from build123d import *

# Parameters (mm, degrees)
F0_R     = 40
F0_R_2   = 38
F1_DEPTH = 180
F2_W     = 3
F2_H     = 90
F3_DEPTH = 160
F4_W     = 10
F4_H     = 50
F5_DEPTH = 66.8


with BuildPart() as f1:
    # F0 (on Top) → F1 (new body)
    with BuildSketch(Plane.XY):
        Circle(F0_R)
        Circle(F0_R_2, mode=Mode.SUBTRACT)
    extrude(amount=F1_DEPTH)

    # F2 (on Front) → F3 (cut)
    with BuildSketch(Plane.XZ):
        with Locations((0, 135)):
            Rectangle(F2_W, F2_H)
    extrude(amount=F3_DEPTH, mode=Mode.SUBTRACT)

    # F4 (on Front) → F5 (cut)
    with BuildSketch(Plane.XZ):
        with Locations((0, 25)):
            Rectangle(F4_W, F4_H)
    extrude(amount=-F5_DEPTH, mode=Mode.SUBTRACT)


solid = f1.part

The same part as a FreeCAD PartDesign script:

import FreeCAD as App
import Part
import Sketcher
from FreeCAD import Vector
Q = App.Units.Quantity

doc = App.newDocument("Part")
body = doc.addObject("PartDesign::Body", "Body")

# Sketch on XY plane
sketch1 = body.newObject("Sketcher::SketchObject", "Sketch")
sketch1.AttachmentSupport = (doc.getObject("XY_Plane"), [""])
sketch1.MapMode = "FlatFace"
sketch1.addGeometry(Part.Circle(Vector(0, 0, 0), Vector(0, 0, 1), 40), False)
sketch1.addGeometry(Part.Circle(Vector(0, 0, 0), Vector(0, 0, 1), 38), False)
sketch1.addConstraint(Sketcher.Constraint("Coincident", 0, 3, -1, 1))
sketch1.addConstraint(Sketcher.Constraint("Coincident", 1, 3, -1, 1))
sketch1.addConstraint(Sketcher.Constraint("Diameter", 0, Q("80 mm")))
sketch1.addConstraint(Sketcher.Constraint("Diameter", 1, Q("76 mm")))
pad1 = body.newObject("PartDesign::Pad", "Pad")
pad1.Profile = sketch1
pad1.Length = 180

# Sketch on XZ plane
sketch2 = body.newObject("Sketcher::SketchObject", "Sketch001")
sketch2.AttachmentSupport = (doc.getObject("XZ_Plane"), [""])
sketch2.MapMode = "FlatFace"
sketch2.addGeometry(Part.LineSegment(Vector(-1.5, 180, 0), Vector(-1.5, 90, 0)), False)
sketch2.addGeometry(Part.LineSegment(Vector(-1.5, 90, 0), Vector(1.5, 90, 0)), False)
sketch2.addGeometry(Part.LineSegment(Vector(1.5, 90, 0), Vector(1.5, 180, 0)), False)
sketch2.addGeometry(Part.LineSegment(Vector(1.5, 180, 0), Vector(-1.5, 180, 0)), False)
sketch2.addConstraint(Sketcher.Constraint("Coincident", 0, 2, 1, 1))
sketch2.addConstraint(Sketcher.Constraint("Coincident", 1, 2, 2, 1))
sketch2.addConstraint(Sketcher.Constraint("Coincident", 2, 2, 3, 1))
sketch2.addConstraint(Sketcher.Constraint("Coincident", 3, 2, 0, 1))
sketch2.addConstraint(Sketcher.Constraint("Vertical", 0))
sketch2.addConstraint(Sketcher.Constraint("Horizontal", 1))
sketch2.addConstraint(Sketcher.Constraint("Vertical", 2))
sketch2.addConstraint(Sketcher.Constraint("Horizontal", 3))
sketch2.addConstraint(Sketcher.Constraint("DistanceX", 1, 1, 1, 2, Q("3 mm")))
sketch2.addConstraint(Sketcher.Constraint("DistanceY", 0, 2, 0, 1, Q("90 mm")))
sketch2.addConstraint(Sketcher.Constraint("DistanceY", -1, 1, 0, 2, Q("90 mm")))
sketch2.addConstraint(Sketcher.Constraint("DistanceX", 0, 2, -1, 1, Q("1.5 mm")))
pocket1 = body.newObject("PartDesign::Pocket", "Pocket")
pocket1.Profile = sketch2
pocket1.Length = 160
pocket1.Reversed = True

# Sketch on XZ plane
sketch3 = body.newObject("Sketcher::SketchObject", "Sketch002")
sketch3.AttachmentSupport = (doc.getObject("XZ_Plane"), [""])
sketch3.MapMode = "FlatFace"
sketch3.addGeometry(Part.LineSegment(Vector(-5, 50, 0), Vector(-5, 0, 0)), False)
sketch3.addGeometry(Part.LineSegment(Vector(-5, 0, 0), Vector(5, 0, 0)), False)
sketch3.addGeometry(Part.LineSegment(Vector(5, 0, 0), Vector(5, 50, 0)), False)
sketch3.addGeometry(Part.LineSegment(Vector(5, 50, 0), Vector(-5, 50, 0)), False)
sketch3.addConstraint(Sketcher.Constraint("Coincident", 0, 2, 1, 1))
sketch3.addConstraint(Sketcher.Constraint("Coincident", 1, 2, 2, 1))
sketch3.addConstraint(Sketcher.Constraint("Coincident", 2, 2, 3, 1))
sketch3.addConstraint(Sketcher.Constraint("Coincident", 3, 2, 0, 1))
sketch3.addConstraint(Sketcher.Constraint("Vertical", 0))
sketch3.addConstraint(Sketcher.Constraint("Horizontal", 1))
sketch3.addConstraint(Sketcher.Constraint("Vertical", 2))
sketch3.addConstraint(Sketcher.Constraint("Horizontal", 3))
sketch3.addConstraint(Sketcher.Constraint("Symmetric", 0, 2, 1, 2, -1, 1))
sketch3.addConstraint(Sketcher.Constraint("DistanceX", 1, 1, 1, 2, Q("10 mm")))
sketch3.addConstraint(Sketcher.Constraint("DistanceY", 0, 2, 0, 1, Q("50 mm")))
pocket2 = body.newObject("PartDesign::Pocket", "Pocket001")
pocket2.Profile = sketch3
pocket2.Length = 66.8

doc.recompute()
